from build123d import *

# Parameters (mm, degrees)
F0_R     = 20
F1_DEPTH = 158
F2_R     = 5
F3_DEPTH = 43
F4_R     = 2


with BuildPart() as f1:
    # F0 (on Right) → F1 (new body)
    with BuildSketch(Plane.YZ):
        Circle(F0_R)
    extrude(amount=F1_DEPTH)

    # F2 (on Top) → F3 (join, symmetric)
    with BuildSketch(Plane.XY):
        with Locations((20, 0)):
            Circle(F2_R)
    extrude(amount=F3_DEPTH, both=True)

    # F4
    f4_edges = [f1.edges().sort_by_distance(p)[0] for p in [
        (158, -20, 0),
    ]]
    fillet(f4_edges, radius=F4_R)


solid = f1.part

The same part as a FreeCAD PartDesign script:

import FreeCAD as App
import Part
import Sketcher


def edges_at(feature, points):
    """Names of the edges that pass closest to the given points."""
    edges = feature.Shape.Edges
    near = lambda p: min(range(len(edges)), key=lambda i: edges[i].distToShape(Part.Vertex(*p))[0])
    return sorted({f"Edge{near(p) + 1}" for p in points})

doc = App.newDocument("Part")
body = doc.addObject("PartDesign::Body", "Body")

# Sketch on YZ plane
sketch1 = doc.addObject("Sketcher::SketchObject", "Sketch")
body.addObject(sketch1)
sketch1.AttachmentSupport = (doc.YZ_Plane, [""])
sketch1.MapMode = "FlatFace"
sketch1.addGeometry(Part.Circle(App.Vector(0, 0, 0), App.Vector(0, 0, 1), 20), False)
sketch1.addConstraint([
    Sketcher.Constraint("Coincident", 0, 3, -1, 1),
    Sketcher.Constraint("Diameter", 0, 40.0),
])
pad1 = doc.addObject("PartDesign::Pad", "Pad")
body.addObject(pad1)
pad1.Profile = sketch1
pad1.Length = 158

# Sketch on XY plane
sketch2 = doc.addObject("Sketcher::SketchObject", "Sketch001")
body.addObject(sketch2)
sketch2.AttachmentSupport = (doc.XY_Plane, [""])
sketch2.MapMode = "FlatFace"
sketch2.addGeometry(Part.Circle(App.Vector(20, 0, 0), App.Vector(0, 0, 1), 5), False)
sketch2.addConstraint([
    Sketcher.Constraint("PointOnObject", 0, 3, -1),
    Sketcher.Constraint("Diameter", 0, 10.0),
    Sketcher.Constraint("DistanceX", -1, 1, 0, 3, 20.0),
])
pad2 = doc.addObject("PartDesign::Pad", "Pad001")
body.addObject(pad2)
pad2.Profile = sketch2
pad2.Length = 86
pad2.Midplane = True
doc.recompute()

fillet = doc.addObject("PartDesign::Fillet", "Fillet")
body.addObject(fillet)
fillet.Base = (pad2, edges_at(pad2, [(158, -20, 0)]))
fillet.Radius = 2

doc.recompute()
